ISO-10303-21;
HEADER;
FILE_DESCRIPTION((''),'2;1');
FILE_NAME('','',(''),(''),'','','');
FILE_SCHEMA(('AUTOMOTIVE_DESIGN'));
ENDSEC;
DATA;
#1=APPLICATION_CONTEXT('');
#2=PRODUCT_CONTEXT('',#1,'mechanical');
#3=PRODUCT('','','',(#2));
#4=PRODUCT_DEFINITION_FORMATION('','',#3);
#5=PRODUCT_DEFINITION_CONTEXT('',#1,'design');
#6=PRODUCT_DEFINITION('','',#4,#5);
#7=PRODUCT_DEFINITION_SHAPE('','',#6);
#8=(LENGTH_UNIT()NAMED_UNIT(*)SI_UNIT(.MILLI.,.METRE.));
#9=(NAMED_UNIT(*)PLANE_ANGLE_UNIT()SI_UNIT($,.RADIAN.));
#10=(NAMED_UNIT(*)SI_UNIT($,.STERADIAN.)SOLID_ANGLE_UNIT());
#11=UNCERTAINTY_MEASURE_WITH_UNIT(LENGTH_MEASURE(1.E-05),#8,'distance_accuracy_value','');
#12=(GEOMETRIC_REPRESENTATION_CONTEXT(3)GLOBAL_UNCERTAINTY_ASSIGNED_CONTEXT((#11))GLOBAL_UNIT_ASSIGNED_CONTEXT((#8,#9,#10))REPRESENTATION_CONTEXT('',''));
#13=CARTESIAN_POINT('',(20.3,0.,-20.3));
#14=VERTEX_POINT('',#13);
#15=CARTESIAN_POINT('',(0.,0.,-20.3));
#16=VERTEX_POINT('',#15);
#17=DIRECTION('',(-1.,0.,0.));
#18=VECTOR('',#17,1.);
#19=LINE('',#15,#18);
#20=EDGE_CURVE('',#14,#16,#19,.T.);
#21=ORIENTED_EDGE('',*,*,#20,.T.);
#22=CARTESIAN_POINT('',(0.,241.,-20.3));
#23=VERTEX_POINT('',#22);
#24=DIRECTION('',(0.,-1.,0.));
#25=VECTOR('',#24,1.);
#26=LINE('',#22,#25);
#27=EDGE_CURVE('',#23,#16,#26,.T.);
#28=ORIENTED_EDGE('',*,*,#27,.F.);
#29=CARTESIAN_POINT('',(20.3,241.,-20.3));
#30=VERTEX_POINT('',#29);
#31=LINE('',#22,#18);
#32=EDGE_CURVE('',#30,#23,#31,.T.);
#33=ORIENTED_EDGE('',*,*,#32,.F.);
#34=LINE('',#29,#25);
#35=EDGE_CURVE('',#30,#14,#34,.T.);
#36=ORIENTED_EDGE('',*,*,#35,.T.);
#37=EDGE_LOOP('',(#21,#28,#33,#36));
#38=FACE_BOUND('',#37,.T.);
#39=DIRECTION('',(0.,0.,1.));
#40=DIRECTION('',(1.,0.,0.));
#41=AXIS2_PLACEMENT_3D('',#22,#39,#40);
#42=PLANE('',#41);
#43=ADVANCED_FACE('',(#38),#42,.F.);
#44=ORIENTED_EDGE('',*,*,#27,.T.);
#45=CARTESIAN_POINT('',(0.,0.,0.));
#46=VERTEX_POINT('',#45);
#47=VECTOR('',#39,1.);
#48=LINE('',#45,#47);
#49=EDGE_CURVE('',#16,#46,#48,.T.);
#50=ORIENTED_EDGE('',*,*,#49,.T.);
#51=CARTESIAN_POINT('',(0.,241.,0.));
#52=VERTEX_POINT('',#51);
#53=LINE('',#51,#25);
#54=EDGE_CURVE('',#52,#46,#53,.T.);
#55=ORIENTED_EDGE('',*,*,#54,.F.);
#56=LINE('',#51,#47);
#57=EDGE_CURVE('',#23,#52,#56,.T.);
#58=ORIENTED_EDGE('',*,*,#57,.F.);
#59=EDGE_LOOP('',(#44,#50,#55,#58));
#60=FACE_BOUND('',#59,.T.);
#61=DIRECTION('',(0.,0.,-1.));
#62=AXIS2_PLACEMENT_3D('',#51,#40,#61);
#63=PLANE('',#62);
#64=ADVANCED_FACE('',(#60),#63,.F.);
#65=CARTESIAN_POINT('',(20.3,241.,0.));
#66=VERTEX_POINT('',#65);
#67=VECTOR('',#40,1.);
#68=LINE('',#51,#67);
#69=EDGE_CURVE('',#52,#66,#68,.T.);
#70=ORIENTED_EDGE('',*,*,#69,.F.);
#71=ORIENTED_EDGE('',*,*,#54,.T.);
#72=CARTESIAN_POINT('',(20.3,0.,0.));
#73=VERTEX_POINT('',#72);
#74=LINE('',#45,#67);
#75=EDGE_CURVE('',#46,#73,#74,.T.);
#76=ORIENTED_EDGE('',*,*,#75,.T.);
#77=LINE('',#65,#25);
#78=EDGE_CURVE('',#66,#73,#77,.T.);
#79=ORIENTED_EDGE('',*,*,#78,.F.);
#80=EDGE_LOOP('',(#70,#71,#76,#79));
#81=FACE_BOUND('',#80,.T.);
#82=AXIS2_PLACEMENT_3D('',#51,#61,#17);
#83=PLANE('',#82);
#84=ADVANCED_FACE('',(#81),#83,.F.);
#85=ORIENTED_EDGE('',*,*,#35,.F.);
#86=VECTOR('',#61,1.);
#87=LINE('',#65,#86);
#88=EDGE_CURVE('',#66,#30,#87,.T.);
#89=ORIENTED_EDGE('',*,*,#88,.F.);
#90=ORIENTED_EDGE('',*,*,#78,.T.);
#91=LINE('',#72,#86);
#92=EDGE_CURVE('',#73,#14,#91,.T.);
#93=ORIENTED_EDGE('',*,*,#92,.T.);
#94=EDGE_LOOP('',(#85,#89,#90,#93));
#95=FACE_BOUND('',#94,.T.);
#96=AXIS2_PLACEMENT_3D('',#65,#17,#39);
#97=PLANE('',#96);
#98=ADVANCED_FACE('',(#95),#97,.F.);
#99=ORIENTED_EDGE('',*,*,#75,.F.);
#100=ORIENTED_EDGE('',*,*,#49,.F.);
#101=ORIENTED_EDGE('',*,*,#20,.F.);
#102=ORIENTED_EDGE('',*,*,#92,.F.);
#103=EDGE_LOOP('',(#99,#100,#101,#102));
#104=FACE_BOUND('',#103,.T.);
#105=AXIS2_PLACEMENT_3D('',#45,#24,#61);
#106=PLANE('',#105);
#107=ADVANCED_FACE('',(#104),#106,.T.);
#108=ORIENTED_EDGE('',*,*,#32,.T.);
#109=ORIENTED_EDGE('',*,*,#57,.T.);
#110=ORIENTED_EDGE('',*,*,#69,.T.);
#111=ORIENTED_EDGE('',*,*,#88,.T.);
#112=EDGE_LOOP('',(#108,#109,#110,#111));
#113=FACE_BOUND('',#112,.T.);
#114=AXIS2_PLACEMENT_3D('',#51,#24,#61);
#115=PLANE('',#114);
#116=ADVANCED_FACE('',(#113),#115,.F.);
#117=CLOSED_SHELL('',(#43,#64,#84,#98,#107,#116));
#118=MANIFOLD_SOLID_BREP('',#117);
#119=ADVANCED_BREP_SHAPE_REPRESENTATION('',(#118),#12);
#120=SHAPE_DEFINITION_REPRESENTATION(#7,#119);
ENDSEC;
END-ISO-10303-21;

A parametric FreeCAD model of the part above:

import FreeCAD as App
import Part
import Sketcher
from FreeCAD import Vector

doc = App.newDocument("Part")
body = doc.addObject("PartDesign::Body", "Body")

# Sketch on XZ plane
sketch1 = body.newObject("Sketcher::SketchObject", "Sketch")
sketch1.AttachmentSupport = (doc.getObject("XZ_Plane"), [""])
sketch1.MapMode = "FlatFace"
sketch1.addGeometry([
    Part.LineSegment(Vector(0, -20, 0), Vector(0, 0, 0)),
    Part.LineSegment(Vector(0, 0, 0), Vector(20, 0, 0)),
    Part.LineSegment(Vector(20, 0, 0), Vector(20, -20, 0)),
    Part.LineSegment(Vector(20, -20, 0), Vector(0, -20, 0)),
], False)
sketch1.addConstraint([
    Sketcher.Constraint("Coincident", 0, 2, 1, 1),
    Sketcher.Constraint("Coincident", 1, 2, 2, 1),
    Sketcher.Constraint("Coincident", 2, 2, 3, 1),
    Sketcher.Constraint("Coincident", 3, 2, 0, 1),
    Sketcher.Constraint("Vertical", 0),
    Sketcher.Constraint("Horizontal", 1),
    Sketcher.Constraint("Vertical", 2),
    Sketcher.Constraint("Horizontal", 3),
    Sketcher.Constraint("Coincident", 0, 2, -1, 1),
    Sketcher.Constraint("Equal", 3, 0),
    Sketcher.Constraint("DistanceX", 1, 1, 1, 2, 20.3),
])
pad1 = body.newObject("PartDesign::Pad", "Pad")
pad1.Profile = sketch1
pad1.Length = 241
pad1.Reversed = True

doc.recompute()
